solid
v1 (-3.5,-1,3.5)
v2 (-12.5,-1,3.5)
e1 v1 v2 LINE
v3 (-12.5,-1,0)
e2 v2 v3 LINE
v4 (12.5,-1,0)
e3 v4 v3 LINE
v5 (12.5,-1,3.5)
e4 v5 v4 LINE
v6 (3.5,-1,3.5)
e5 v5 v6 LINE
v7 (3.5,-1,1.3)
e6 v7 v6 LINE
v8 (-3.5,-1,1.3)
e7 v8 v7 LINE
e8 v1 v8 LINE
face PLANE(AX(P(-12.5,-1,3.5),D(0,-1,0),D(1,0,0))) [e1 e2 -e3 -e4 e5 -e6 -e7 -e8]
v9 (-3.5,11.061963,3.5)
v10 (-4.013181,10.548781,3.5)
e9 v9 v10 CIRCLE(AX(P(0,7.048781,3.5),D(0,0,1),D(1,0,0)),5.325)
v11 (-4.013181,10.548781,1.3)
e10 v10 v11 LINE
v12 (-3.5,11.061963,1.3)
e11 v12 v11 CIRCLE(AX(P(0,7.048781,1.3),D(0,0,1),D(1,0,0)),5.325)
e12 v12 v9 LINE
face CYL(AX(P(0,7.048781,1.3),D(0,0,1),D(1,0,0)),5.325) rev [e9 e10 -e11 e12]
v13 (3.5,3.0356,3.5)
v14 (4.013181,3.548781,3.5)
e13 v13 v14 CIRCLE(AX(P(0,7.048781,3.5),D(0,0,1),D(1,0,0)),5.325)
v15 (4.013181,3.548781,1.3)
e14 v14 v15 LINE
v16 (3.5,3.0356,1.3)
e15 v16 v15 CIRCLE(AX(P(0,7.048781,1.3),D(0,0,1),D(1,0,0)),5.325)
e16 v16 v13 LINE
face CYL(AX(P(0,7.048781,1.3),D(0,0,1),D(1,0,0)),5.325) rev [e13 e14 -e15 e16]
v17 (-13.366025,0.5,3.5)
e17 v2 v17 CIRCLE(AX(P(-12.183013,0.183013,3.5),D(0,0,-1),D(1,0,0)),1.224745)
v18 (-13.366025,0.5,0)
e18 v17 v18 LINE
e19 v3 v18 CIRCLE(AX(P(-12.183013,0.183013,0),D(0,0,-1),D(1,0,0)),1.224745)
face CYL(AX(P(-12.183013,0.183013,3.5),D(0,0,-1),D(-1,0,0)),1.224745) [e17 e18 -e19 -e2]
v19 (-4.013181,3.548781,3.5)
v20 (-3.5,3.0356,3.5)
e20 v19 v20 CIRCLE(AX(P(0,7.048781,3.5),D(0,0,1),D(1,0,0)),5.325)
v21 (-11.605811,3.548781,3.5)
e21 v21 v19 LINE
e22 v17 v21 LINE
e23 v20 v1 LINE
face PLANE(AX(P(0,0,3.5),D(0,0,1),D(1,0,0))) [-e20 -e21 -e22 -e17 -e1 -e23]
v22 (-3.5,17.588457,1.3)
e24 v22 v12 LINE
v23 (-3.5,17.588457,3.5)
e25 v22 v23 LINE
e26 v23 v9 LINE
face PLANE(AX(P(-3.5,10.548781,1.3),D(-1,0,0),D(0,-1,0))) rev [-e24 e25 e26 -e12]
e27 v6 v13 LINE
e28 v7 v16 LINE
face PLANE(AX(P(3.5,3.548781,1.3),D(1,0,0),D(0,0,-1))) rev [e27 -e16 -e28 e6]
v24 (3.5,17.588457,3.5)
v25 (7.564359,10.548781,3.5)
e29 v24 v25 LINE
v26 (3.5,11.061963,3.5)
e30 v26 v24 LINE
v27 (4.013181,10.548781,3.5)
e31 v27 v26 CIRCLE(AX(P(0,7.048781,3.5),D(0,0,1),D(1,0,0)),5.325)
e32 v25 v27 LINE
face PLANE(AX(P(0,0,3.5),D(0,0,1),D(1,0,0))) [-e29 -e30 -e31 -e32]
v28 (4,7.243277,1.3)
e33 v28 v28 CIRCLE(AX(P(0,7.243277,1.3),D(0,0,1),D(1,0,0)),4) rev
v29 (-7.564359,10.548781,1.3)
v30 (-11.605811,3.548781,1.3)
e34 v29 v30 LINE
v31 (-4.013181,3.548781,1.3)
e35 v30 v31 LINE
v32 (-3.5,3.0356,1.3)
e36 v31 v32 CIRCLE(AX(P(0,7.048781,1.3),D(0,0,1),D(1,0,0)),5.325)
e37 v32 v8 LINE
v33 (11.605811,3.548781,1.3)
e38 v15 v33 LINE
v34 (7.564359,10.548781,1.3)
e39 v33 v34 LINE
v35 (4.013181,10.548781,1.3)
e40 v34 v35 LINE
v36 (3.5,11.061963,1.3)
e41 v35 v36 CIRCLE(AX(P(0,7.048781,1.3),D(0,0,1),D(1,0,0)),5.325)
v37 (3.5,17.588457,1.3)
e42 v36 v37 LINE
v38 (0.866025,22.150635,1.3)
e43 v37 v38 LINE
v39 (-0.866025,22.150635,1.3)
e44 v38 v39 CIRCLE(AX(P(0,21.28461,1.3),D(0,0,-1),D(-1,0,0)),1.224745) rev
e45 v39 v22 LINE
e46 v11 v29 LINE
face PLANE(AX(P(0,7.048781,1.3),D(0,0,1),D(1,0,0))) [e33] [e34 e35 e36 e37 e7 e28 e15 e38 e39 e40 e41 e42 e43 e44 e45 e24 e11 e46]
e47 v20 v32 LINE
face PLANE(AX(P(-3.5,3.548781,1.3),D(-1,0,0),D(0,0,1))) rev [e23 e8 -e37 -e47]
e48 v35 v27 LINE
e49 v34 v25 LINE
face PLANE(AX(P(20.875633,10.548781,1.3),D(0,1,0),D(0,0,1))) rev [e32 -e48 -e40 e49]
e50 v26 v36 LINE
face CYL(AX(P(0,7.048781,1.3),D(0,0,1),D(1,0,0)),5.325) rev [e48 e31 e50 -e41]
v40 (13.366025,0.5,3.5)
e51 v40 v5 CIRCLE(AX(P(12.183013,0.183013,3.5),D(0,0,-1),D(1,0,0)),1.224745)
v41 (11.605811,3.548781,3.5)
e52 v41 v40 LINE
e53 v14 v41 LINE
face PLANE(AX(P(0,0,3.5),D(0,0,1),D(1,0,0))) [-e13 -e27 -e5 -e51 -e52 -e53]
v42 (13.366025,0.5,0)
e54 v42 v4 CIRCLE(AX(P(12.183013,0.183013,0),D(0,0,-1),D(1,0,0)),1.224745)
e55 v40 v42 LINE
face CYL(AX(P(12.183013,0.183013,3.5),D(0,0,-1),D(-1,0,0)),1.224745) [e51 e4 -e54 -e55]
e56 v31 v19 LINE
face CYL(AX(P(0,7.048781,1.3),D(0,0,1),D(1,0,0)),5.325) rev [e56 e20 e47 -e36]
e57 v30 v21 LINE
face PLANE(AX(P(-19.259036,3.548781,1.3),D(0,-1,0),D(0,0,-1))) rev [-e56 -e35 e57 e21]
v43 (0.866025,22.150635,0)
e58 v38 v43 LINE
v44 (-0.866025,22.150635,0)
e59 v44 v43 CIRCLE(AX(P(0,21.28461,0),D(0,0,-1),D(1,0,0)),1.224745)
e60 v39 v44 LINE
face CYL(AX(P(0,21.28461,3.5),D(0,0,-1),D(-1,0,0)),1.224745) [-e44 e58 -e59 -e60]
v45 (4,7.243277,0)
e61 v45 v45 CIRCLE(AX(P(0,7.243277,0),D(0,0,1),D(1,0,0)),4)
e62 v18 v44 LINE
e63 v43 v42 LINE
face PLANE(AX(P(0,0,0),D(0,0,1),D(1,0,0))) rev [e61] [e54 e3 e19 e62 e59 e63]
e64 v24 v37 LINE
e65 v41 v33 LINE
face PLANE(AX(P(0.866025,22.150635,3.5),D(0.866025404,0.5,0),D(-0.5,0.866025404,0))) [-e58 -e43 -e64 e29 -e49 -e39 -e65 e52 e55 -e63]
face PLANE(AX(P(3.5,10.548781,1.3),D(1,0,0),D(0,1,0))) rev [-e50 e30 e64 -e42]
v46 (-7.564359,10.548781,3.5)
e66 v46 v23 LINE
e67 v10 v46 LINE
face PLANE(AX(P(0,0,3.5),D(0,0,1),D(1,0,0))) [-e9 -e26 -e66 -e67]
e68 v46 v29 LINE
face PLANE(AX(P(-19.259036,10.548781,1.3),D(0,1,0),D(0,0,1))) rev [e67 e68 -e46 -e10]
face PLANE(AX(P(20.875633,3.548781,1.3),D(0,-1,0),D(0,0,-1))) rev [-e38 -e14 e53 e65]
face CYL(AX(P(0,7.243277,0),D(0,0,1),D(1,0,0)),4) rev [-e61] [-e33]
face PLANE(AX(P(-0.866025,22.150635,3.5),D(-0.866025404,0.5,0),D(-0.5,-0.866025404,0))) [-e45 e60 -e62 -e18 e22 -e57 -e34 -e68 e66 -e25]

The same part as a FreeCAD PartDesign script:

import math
import FreeCAD as App
import Part
import Sketcher
Q = App.Units.Quantity


def add_polygon(sketch, points):
    """Adds a closed chain of lines whose ends are joined by coincident constraints."""
    first, n = sketch.GeometryCount, len(points)
    for a, b in zip(points, points[1:] + points[:1]):
        sketch.addGeometry(Part.LineSegment(App.Vector(*a, 0), App.Vector(*b, 0)), False)
    for i in range(n):
        sketch.addConstraint(Sketcher.Constraint("Coincident", first + i, 2, first + (i + 1) % n, 1))

doc = App.newDocument("Part")
body = doc.addObject("PartDesign::Body", "Body")

# Sketch on XY plane
sketch1 = body.newObject("Sketcher::SketchObject", "Sketch")
sketch1.AttachmentSupport = (doc.getObject("XY_Plane"), [""])
sketch1.MapMode = "FlatFace"
add_polygon(sketch1, [(0, 22), (-12, 0), (12, 0)])  # lines 0-2
sketch1.addConstraint([
    Sketcher.Constraint("Horizontal", 1),
    Sketcher.Constraint("Symmetric", 0, 2, 1, 2, -1, 1),
    Sketcher.Constraint("PointOnObject", 2, 2, -2),
    Sketcher.Constraint("DistanceX", 1, 1, 1, 2, Q("25 mm")),
    Sketcher.Constraint("Angle", 0, Q("-120 deg")),
])
pad1 = body.newObject("PartDesign::Pad", "Pad")
pad1.Profile = sketch1
pad1.Length = 3.5

# Sketch on XY plane
sketch2 = body.newObject("Sketcher::SketchObject", "Sketch001")
sketch2.AttachmentSupport = (doc.getObject("XY_Plane"), [""])
sketch2.MapMode = "FlatFace"
sketch2.addGeometry(Part.LineSegment(App.Vector(-13.4, 0.5, 0), App.Vector(-0.9, 22.2, 0)), False)  # 0
sketch2.addGeometry(Part.ArcOfCircle(Part.Circle(App.Vector(0, 21.3, 0), App.Vector(0, 0, 1), 1.2), math.radians(45), math.radians(135)), False)  # 1
sketch2.addGeometry(Part.LineSegment(App.Vector(0.9, 22.2, 0), App.Vector(13.4, 0.5, 0)), False)  # 2
sketch2.addGeometry(Part.ArcOfCircle(Part.Circle(App.Vector(12.2, 0.2, 0), App.Vector(0, 0, 1), 1.2), math.radians(-75), math.radians(15)), False)  # 3
sketch2.addGeometry(Part.LineSegment(App.Vector(12.5, -1, 0), App.Vector(-12.5, -1, 0)), False)  # 4
sketch2.addGeometry(Part.ArcOfCircle(Part.Circle(App.Vector(-12.2, 0.2, 0), App.Vector(0, 0, 1), 1.2), math.radians(165), math.radians(255)), False)  # 5
add_polygon(sketch2, [(0, 21.7), (-12.5, 0), (12.5, 0)])  # lines 6-8
sketch2.addConstraint([
    Sketcher.Constraint("Coincident", 0, 2, 1, 2),
    Sketcher.Constraint("Coincident", 1, 1, 2, 1),
    Sketcher.Constraint("Coincident", 2, 2, 3, 2),
    Sketcher.Constraint("Coincident", 3, 1, 4, 1),
    Sketcher.Constraint("Coincident", 4, 2, 5, 2),
    Sketcher.Constraint("Coincident", 5, 1, 0, 1),
    Sketcher.Constraint("Horizontal", 4),
    Sketcher.Constraint("Horizontal", 7),
    Sketcher.Constraint("Equal", 1, 3),
    Sketcher.Constraint("Equal", 3, 5),
    Sketcher.Constraint("Symmetric", 6, 2, 7, 2, -1, 1),
    Sketcher.Constraint("Symmetric", 3, 3, 5, 3, -2),
    Sketcher.Constraint("Symmetric", 0, 2, 1, 1, -2),
    Sketcher.Constraint("PointOnObject", 8, 2, -2),
    Sketcher.Constraint("Parallel", 0, 6),
    Sketcher.Constraint("Parallel", 2, 8),
    Sketcher.Constraint("Vertical", 4, 2, 6, 2),
    Sketcher.Constraint("Equal", 2, 6),
    Sketcher.Constraint("DistanceX", 4, 2, 4, 1, Q("25 mm")),
    Sketcher.Constraint("Angle", 0, Q("60 deg")),
    Sketcher.Constraint("DistanceY", 3, 1, -1, 1, Q("1 mm")),
    Sketcher.Constraint("DistanceY", -1, 1, 2, 2, Q("0.5 mm")),
    Sketcher.Constraint("Radius", 1, Q("1.224745 mm")),
    Sketcher.Constraint("DistanceY", -1, 1, 1, 3, Q("21.28461 mm")),
])
pad2 = body.newObject("PartDesign::Pad", "Pad001")
pad2.Profile = sketch2
pad2.Type = "UpToLast"

# Sketch on XY plane
sketch3 = body.newObject("Sketcher::SketchObject", "Sketch002")
sketch3.AttachmentSupport = (doc.getObject("XY_Plane"), [""])
sketch3.MapMode = "FlatFace"
sketch3.AttachmentOffset = App.Placement(App.Vector(0, 0, 3.5), App.Rotation())
sketch3.addGeometry(Part.Circle(App.Vector(0, 7.2, 0), App.Vector(0, 0, 1), 4), False)
sketch3.addConstraint([
    Sketcher.Constraint("PointOnObject", 0, 3, -2),
    Sketcher.Constraint("Diameter", 0, Q("8 mm")),
    Sketcher.Constraint("DistanceY", -1, 1, 0, 3, Q("7.243277 mm")),
])
pocket1 = body.newObject("PartDesign::Pocket", "Pocket")
pocket1.Profile = sketch3
pocket1.Type = "ThroughAll"

# Sketch on XY plane
sketch4 = body.newObject("Sketcher::SketchObject", "Sketch003")
sketch4.AttachmentSupport = (doc.getObject("XY_Plane"), [""])
sketch4.MapMode = "FlatFace"
sketch4.AttachmentOffset = App.Placement(App.Vector(0, 0, 3.5), App.Rotation())
sketch4.addGeometry(Part.Circle(App.Vector(0, 7, 0), App.Vector(0, 0, 1), 5), False)
sketch4.addConstraint([
    Sketcher.Constraint("PointOnObject", 0, 3, -2),
    Sketcher.Constraint("Diameter", 0, Q("10.65 mm")),
    Sketcher.Constraint("DistanceY", -1, 1, 0, 3, Q("7.048781 mm")),
])
pocket2 = body.newObject("PartDesign::Pocket", "Pocket001")
pocket2.Profile = sketch4
pocket2.Length = 2.2

# Sketch on XY plane
sketch5 = body.newObject("Sketcher::SketchObject", "Sketch004")
sketch5.AttachmentSupport = (doc.getObject("XY_Plane"), [""])
sketch5.MapMode = "FlatFace"
sketch5.AttachmentOffset = App.Placement(App.Vector(0, 0, 3.5), App.Rotation())
add_polygon(sketch5, [(4, 25), (-4, 25), (-4, 11), (-19, 11), (-19, 4), (-4, 4), (-4, -3), (4, -3), (4, 4), (21, 4), (21, 11), (4, 11)])  # lines 0-11
sketch5.addConstraint([
    Sketcher.Constraint("Horizontal", 0),
    Sketcher.Constraint("Vertical", 1),
    Sketcher.Constraint("Horizontal", 2),
    Sketcher.Constraint("Vertical", 3),
    Sketcher.Constraint("Horizontal", 4),
    Sketcher.Constraint("Vertical", 5),
    Sketcher.Constraint("Horizontal", 6),
    Sketcher.Constraint("Vertical", 7),
    Sketcher.Constraint("Horizontal", 8),
    Sketcher.Constraint("Vertical", 9),
    Sketcher.Constraint("Horizontal", 10),
    Sketcher.Constraint("Vertical", 11),
    Sketcher.Constraint("Symmetric", 4, 2, 7, 2, -2),
    Sketcher.Constraint("Symmetric", 1, 2, 10, 2, -2),
    Sketcher.Constraint("Vertical", 1, 2, 4, 2),
    Sketcher.Constraint("Equal", 6, 3),
    Sketcher.Constraint("DistanceX", 0, 2, 0, 1, Q("7 mm")),
    Sketcher.Constraint("DistanceY", 5, 2, 5, 1, Q("6.4198 mm")),
    Sketcher.Constraint("DistanceX", 2, 2, 2, 1, Q("15.759036 mm")),
    Sketcher.Constraint("DistanceX", 8, 1, 8, 2, Q("17.375633 mm")),
    Sketcher.Constraint("DistanceY", 1, 2, 1, 1, Q("14.321167 mm")),
    Sketcher.Constraint("DistanceY", -1, 1, 0, 2, Q("24.869949 mm")),
])
pocket3 = body.newObject("PartDesign::Pocket", "Pocket002")
pocket3.Profile = sketch5
pocket3.Length = 2.2

doc.recompute()
